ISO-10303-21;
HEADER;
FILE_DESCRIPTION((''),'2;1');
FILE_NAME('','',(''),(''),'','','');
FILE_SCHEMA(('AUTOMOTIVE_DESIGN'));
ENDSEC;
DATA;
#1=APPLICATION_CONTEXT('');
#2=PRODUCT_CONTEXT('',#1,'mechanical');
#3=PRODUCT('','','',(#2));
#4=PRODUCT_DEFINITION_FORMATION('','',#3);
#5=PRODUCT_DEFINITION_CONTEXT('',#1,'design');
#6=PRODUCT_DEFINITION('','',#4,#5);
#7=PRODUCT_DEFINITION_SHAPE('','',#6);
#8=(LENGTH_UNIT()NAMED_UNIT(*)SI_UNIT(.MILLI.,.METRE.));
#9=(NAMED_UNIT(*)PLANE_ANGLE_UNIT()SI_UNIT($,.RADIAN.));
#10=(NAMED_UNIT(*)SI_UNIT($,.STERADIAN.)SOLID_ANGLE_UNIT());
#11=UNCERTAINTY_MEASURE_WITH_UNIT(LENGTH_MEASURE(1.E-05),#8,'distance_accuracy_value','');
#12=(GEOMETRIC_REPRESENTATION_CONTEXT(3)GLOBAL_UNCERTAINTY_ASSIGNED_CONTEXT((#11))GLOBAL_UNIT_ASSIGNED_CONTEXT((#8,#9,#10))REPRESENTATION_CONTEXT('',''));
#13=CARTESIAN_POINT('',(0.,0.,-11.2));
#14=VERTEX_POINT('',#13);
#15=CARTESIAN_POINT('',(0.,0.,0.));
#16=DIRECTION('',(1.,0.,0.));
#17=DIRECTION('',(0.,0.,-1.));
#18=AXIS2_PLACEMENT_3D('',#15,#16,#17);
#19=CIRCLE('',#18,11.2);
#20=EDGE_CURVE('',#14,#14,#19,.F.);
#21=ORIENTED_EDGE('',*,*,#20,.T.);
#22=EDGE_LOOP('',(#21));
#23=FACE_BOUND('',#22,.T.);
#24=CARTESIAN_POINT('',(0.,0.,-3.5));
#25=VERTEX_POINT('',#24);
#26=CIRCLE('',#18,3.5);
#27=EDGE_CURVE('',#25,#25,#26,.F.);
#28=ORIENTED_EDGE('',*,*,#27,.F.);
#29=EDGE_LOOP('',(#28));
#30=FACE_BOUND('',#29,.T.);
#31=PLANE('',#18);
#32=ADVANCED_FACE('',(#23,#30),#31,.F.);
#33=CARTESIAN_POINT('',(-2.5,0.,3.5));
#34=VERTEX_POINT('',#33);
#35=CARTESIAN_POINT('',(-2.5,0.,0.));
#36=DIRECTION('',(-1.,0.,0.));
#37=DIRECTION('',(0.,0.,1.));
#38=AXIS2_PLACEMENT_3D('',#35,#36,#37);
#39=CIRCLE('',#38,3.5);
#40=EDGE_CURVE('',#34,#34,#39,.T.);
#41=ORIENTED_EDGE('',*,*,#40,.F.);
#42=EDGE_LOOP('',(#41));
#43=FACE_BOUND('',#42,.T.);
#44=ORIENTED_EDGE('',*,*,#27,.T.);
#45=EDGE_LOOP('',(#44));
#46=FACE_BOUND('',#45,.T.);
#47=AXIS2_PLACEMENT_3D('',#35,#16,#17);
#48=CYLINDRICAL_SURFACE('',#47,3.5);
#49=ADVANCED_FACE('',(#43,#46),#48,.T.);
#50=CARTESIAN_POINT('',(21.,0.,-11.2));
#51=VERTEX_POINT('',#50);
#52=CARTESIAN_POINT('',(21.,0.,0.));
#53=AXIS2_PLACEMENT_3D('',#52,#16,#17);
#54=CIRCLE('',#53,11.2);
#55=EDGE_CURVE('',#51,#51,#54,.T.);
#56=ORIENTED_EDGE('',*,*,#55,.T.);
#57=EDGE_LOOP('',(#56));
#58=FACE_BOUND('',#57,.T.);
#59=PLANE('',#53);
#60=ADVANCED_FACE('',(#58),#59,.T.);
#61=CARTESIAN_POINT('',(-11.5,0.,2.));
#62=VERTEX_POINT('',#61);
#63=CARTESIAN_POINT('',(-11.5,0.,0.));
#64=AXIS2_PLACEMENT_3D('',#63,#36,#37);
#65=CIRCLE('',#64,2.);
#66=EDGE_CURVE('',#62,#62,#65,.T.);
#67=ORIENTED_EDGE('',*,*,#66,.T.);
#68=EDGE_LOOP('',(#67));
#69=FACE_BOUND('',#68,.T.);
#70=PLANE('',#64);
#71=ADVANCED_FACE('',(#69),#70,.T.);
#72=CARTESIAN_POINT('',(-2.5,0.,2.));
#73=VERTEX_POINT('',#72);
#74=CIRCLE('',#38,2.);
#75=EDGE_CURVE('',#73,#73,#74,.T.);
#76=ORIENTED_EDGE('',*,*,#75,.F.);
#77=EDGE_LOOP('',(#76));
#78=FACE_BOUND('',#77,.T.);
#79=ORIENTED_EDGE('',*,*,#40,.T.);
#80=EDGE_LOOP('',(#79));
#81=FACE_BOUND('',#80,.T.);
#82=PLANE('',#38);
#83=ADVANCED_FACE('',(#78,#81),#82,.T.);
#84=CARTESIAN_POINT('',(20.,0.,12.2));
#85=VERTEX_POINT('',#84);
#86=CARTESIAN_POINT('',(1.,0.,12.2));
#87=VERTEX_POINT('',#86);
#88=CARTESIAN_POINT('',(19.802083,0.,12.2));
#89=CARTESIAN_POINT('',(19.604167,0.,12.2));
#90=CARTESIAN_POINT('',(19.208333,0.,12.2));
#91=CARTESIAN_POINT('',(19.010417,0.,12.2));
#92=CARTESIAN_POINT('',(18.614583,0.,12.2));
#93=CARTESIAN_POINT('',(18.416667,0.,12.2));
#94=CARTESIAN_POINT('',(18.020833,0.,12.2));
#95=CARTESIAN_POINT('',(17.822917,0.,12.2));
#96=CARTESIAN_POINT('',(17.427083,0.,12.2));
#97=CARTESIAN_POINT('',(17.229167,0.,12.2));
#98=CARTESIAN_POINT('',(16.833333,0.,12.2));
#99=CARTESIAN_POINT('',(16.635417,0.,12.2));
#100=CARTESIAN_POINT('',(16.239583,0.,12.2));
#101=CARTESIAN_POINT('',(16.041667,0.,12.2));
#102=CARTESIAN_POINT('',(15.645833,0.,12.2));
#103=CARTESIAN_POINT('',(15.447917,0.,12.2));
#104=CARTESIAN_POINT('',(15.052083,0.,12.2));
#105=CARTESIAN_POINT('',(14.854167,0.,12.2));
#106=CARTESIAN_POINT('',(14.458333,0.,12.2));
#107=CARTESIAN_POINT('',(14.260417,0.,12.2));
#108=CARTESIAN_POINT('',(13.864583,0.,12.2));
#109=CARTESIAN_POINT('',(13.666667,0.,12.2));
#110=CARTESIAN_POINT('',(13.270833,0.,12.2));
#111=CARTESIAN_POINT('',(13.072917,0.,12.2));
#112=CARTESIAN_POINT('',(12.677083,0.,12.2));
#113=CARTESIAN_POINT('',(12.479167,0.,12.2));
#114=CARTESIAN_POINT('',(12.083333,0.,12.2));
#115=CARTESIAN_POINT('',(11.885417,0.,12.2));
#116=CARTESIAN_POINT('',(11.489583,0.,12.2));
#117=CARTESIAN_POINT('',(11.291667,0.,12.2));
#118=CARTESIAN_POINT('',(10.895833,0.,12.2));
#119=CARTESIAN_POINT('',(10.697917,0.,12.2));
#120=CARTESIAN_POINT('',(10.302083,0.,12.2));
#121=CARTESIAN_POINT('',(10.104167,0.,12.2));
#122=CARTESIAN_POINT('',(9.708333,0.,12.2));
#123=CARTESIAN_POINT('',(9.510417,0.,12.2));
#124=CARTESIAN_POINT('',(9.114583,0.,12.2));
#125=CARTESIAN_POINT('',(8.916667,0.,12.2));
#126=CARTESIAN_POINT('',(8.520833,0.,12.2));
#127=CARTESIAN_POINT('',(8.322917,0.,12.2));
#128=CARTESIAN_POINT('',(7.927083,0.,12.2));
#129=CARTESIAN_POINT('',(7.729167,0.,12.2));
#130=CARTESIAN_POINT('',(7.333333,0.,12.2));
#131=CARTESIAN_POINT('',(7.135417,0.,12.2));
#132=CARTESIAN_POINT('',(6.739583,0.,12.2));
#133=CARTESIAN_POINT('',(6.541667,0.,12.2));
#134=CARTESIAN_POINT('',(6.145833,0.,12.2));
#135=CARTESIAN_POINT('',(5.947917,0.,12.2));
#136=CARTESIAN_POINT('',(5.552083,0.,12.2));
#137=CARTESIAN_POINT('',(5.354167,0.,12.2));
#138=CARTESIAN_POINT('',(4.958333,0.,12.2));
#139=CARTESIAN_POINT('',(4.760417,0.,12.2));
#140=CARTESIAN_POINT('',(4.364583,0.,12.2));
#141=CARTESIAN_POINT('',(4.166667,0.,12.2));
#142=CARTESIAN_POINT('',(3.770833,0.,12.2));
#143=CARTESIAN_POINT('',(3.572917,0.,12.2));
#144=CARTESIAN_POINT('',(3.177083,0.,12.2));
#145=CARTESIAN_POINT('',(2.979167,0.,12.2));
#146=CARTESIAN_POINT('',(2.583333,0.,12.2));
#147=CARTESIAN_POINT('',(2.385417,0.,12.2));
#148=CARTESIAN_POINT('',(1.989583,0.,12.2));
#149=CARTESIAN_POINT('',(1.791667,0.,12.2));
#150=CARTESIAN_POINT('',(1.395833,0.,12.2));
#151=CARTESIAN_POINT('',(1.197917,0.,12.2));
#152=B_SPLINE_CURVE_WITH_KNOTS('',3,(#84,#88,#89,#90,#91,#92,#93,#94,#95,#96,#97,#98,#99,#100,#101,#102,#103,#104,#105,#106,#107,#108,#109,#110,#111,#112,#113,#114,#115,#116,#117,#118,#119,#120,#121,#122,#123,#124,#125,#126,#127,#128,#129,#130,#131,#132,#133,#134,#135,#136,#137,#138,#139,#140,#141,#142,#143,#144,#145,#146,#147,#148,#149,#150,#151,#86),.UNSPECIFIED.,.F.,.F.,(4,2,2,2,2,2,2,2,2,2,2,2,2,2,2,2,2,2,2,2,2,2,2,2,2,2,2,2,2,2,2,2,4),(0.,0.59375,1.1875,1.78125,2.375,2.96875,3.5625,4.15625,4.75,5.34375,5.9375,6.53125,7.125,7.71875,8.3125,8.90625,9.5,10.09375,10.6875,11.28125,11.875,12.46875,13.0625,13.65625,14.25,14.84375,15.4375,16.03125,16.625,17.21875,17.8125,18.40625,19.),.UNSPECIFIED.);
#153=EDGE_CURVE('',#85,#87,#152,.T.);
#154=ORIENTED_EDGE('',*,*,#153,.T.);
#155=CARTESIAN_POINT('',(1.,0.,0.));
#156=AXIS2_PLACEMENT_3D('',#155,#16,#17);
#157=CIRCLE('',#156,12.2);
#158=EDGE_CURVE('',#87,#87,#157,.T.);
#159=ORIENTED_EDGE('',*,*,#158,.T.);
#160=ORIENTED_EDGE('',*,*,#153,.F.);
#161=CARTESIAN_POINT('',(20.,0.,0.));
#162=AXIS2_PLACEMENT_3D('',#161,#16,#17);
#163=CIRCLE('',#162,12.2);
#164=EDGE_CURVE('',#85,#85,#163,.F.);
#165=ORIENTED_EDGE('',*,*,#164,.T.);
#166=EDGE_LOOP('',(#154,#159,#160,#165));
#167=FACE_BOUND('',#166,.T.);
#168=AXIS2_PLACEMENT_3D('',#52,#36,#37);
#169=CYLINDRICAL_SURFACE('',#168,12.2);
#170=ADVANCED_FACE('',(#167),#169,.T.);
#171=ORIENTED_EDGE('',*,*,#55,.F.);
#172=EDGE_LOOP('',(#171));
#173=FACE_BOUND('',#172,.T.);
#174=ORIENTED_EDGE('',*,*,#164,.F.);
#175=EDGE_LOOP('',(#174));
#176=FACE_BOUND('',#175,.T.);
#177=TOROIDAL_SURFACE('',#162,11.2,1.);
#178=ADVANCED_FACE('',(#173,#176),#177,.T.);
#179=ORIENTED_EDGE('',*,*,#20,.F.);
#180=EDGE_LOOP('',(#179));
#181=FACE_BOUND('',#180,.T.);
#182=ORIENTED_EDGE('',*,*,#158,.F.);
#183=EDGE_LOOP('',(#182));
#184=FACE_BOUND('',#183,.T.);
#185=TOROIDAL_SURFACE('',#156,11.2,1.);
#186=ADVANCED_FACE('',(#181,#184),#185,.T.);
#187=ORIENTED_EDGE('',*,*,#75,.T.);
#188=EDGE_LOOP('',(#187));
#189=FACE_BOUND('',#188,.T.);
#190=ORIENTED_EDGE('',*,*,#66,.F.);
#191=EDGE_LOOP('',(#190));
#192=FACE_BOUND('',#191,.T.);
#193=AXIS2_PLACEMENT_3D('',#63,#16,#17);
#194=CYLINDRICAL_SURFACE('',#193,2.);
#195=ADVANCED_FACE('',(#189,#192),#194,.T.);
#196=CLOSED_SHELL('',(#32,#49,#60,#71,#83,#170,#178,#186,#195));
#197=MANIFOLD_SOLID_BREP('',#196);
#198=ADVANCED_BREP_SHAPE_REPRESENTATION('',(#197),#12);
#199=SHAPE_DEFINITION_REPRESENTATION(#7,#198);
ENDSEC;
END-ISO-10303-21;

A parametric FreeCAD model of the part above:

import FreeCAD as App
import Part
import Sketcher
Q = App.Units.Quantity


def edges_at(feature, points):
    """Names of the edges that pass closest to the given points."""
    edges = feature.Shape.Edges
    near = lambda p: min(range(len(edges)), key=lambda i: edges[i].distToShape(Part.Vertex(*p))[0])
    return sorted({f"Edge{near(p) + 1}" for p in points})

doc = App.newDocument("Part")
body = doc.addObject("PartDesign::Body", "Body")

sketch1 = body.newObject("Sketcher::SketchObject", "Sketch")
sketch1.AttachmentSupport = (doc.getObject("YZ_Plane"), [""])
sketch1.MapMode = "FlatFace"
sketch1.addGeometry(Part.Circle(App.Vector(0, 0, 0), App.Vector(0, 0, 1), 12.2), False)
sketch1.addConstraint([
    Sketcher.Constraint("Coincident", 0, 3, -1, 1),
    Sketcher.Constraint("Diameter", 0, Q("24.4 mm")),
])
pad1 = body.newObject("PartDesign::Pad", "Pad")
pad1.Profile = sketch1
pad1.Length = 21
doc.recompute()

fillet = body.newObject("PartDesign::Fillet", "Fillet")
fillet.Base = (pad1, edges_at(pad1, [(0, 0, -12.2), (21, 0, -12.2)]))
fillet.Radius = 1

sketch2 = body.newObject("Sketcher::SketchObject", "Sketch001")
sketch2.AttachmentSupport = (doc.getObject("YZ_Plane"), [""])
sketch2.MapMode = "FlatFace"
sketch2.addGeometry(Part.Circle(App.Vector(0, 0, 0), App.Vector(0, 0, 1), 3.5), False)
sketch2.addConstraint([
    Sketcher.Constraint("Coincident", 0, 3, -1, 1),
    Sketcher.Constraint("Diameter", 0, Q("7 mm")),
])
pad2 = body.newObject("PartDesign::Pad", "Pad001")
pad2.Profile = sketch2
pad2.Length = 2.5
pad2.Reversed = True

sketch3 = body.newObject("Sketcher::SketchObject", "Sketch002")
sketch3.AttachmentSupport = (doc.getObject("YZ_Plane"), [""])
sketch3.MapMode = "FlatFace"
sketch3.AttachmentOffset = App.Placement(App.Vector(0, 0, -2.5), App.Rotation())
sketch3.addGeometry(Part.Circle(App.Vector(0, 0, 0), App.Vector(0, 0, 1), 2), False)
sketch3.addConstraint([
    Sketcher.Constraint("Coincident", 0, 3, -1, 1),
    Sketcher.Constraint("Diameter", 0, Q("4 mm")),
])
pad3 = body.newObject("PartDesign::Pad", "Pad002")
pad3.Profile = sketch3
pad3.Length = 9
pad3.Reversed = True

doc.recompute()
